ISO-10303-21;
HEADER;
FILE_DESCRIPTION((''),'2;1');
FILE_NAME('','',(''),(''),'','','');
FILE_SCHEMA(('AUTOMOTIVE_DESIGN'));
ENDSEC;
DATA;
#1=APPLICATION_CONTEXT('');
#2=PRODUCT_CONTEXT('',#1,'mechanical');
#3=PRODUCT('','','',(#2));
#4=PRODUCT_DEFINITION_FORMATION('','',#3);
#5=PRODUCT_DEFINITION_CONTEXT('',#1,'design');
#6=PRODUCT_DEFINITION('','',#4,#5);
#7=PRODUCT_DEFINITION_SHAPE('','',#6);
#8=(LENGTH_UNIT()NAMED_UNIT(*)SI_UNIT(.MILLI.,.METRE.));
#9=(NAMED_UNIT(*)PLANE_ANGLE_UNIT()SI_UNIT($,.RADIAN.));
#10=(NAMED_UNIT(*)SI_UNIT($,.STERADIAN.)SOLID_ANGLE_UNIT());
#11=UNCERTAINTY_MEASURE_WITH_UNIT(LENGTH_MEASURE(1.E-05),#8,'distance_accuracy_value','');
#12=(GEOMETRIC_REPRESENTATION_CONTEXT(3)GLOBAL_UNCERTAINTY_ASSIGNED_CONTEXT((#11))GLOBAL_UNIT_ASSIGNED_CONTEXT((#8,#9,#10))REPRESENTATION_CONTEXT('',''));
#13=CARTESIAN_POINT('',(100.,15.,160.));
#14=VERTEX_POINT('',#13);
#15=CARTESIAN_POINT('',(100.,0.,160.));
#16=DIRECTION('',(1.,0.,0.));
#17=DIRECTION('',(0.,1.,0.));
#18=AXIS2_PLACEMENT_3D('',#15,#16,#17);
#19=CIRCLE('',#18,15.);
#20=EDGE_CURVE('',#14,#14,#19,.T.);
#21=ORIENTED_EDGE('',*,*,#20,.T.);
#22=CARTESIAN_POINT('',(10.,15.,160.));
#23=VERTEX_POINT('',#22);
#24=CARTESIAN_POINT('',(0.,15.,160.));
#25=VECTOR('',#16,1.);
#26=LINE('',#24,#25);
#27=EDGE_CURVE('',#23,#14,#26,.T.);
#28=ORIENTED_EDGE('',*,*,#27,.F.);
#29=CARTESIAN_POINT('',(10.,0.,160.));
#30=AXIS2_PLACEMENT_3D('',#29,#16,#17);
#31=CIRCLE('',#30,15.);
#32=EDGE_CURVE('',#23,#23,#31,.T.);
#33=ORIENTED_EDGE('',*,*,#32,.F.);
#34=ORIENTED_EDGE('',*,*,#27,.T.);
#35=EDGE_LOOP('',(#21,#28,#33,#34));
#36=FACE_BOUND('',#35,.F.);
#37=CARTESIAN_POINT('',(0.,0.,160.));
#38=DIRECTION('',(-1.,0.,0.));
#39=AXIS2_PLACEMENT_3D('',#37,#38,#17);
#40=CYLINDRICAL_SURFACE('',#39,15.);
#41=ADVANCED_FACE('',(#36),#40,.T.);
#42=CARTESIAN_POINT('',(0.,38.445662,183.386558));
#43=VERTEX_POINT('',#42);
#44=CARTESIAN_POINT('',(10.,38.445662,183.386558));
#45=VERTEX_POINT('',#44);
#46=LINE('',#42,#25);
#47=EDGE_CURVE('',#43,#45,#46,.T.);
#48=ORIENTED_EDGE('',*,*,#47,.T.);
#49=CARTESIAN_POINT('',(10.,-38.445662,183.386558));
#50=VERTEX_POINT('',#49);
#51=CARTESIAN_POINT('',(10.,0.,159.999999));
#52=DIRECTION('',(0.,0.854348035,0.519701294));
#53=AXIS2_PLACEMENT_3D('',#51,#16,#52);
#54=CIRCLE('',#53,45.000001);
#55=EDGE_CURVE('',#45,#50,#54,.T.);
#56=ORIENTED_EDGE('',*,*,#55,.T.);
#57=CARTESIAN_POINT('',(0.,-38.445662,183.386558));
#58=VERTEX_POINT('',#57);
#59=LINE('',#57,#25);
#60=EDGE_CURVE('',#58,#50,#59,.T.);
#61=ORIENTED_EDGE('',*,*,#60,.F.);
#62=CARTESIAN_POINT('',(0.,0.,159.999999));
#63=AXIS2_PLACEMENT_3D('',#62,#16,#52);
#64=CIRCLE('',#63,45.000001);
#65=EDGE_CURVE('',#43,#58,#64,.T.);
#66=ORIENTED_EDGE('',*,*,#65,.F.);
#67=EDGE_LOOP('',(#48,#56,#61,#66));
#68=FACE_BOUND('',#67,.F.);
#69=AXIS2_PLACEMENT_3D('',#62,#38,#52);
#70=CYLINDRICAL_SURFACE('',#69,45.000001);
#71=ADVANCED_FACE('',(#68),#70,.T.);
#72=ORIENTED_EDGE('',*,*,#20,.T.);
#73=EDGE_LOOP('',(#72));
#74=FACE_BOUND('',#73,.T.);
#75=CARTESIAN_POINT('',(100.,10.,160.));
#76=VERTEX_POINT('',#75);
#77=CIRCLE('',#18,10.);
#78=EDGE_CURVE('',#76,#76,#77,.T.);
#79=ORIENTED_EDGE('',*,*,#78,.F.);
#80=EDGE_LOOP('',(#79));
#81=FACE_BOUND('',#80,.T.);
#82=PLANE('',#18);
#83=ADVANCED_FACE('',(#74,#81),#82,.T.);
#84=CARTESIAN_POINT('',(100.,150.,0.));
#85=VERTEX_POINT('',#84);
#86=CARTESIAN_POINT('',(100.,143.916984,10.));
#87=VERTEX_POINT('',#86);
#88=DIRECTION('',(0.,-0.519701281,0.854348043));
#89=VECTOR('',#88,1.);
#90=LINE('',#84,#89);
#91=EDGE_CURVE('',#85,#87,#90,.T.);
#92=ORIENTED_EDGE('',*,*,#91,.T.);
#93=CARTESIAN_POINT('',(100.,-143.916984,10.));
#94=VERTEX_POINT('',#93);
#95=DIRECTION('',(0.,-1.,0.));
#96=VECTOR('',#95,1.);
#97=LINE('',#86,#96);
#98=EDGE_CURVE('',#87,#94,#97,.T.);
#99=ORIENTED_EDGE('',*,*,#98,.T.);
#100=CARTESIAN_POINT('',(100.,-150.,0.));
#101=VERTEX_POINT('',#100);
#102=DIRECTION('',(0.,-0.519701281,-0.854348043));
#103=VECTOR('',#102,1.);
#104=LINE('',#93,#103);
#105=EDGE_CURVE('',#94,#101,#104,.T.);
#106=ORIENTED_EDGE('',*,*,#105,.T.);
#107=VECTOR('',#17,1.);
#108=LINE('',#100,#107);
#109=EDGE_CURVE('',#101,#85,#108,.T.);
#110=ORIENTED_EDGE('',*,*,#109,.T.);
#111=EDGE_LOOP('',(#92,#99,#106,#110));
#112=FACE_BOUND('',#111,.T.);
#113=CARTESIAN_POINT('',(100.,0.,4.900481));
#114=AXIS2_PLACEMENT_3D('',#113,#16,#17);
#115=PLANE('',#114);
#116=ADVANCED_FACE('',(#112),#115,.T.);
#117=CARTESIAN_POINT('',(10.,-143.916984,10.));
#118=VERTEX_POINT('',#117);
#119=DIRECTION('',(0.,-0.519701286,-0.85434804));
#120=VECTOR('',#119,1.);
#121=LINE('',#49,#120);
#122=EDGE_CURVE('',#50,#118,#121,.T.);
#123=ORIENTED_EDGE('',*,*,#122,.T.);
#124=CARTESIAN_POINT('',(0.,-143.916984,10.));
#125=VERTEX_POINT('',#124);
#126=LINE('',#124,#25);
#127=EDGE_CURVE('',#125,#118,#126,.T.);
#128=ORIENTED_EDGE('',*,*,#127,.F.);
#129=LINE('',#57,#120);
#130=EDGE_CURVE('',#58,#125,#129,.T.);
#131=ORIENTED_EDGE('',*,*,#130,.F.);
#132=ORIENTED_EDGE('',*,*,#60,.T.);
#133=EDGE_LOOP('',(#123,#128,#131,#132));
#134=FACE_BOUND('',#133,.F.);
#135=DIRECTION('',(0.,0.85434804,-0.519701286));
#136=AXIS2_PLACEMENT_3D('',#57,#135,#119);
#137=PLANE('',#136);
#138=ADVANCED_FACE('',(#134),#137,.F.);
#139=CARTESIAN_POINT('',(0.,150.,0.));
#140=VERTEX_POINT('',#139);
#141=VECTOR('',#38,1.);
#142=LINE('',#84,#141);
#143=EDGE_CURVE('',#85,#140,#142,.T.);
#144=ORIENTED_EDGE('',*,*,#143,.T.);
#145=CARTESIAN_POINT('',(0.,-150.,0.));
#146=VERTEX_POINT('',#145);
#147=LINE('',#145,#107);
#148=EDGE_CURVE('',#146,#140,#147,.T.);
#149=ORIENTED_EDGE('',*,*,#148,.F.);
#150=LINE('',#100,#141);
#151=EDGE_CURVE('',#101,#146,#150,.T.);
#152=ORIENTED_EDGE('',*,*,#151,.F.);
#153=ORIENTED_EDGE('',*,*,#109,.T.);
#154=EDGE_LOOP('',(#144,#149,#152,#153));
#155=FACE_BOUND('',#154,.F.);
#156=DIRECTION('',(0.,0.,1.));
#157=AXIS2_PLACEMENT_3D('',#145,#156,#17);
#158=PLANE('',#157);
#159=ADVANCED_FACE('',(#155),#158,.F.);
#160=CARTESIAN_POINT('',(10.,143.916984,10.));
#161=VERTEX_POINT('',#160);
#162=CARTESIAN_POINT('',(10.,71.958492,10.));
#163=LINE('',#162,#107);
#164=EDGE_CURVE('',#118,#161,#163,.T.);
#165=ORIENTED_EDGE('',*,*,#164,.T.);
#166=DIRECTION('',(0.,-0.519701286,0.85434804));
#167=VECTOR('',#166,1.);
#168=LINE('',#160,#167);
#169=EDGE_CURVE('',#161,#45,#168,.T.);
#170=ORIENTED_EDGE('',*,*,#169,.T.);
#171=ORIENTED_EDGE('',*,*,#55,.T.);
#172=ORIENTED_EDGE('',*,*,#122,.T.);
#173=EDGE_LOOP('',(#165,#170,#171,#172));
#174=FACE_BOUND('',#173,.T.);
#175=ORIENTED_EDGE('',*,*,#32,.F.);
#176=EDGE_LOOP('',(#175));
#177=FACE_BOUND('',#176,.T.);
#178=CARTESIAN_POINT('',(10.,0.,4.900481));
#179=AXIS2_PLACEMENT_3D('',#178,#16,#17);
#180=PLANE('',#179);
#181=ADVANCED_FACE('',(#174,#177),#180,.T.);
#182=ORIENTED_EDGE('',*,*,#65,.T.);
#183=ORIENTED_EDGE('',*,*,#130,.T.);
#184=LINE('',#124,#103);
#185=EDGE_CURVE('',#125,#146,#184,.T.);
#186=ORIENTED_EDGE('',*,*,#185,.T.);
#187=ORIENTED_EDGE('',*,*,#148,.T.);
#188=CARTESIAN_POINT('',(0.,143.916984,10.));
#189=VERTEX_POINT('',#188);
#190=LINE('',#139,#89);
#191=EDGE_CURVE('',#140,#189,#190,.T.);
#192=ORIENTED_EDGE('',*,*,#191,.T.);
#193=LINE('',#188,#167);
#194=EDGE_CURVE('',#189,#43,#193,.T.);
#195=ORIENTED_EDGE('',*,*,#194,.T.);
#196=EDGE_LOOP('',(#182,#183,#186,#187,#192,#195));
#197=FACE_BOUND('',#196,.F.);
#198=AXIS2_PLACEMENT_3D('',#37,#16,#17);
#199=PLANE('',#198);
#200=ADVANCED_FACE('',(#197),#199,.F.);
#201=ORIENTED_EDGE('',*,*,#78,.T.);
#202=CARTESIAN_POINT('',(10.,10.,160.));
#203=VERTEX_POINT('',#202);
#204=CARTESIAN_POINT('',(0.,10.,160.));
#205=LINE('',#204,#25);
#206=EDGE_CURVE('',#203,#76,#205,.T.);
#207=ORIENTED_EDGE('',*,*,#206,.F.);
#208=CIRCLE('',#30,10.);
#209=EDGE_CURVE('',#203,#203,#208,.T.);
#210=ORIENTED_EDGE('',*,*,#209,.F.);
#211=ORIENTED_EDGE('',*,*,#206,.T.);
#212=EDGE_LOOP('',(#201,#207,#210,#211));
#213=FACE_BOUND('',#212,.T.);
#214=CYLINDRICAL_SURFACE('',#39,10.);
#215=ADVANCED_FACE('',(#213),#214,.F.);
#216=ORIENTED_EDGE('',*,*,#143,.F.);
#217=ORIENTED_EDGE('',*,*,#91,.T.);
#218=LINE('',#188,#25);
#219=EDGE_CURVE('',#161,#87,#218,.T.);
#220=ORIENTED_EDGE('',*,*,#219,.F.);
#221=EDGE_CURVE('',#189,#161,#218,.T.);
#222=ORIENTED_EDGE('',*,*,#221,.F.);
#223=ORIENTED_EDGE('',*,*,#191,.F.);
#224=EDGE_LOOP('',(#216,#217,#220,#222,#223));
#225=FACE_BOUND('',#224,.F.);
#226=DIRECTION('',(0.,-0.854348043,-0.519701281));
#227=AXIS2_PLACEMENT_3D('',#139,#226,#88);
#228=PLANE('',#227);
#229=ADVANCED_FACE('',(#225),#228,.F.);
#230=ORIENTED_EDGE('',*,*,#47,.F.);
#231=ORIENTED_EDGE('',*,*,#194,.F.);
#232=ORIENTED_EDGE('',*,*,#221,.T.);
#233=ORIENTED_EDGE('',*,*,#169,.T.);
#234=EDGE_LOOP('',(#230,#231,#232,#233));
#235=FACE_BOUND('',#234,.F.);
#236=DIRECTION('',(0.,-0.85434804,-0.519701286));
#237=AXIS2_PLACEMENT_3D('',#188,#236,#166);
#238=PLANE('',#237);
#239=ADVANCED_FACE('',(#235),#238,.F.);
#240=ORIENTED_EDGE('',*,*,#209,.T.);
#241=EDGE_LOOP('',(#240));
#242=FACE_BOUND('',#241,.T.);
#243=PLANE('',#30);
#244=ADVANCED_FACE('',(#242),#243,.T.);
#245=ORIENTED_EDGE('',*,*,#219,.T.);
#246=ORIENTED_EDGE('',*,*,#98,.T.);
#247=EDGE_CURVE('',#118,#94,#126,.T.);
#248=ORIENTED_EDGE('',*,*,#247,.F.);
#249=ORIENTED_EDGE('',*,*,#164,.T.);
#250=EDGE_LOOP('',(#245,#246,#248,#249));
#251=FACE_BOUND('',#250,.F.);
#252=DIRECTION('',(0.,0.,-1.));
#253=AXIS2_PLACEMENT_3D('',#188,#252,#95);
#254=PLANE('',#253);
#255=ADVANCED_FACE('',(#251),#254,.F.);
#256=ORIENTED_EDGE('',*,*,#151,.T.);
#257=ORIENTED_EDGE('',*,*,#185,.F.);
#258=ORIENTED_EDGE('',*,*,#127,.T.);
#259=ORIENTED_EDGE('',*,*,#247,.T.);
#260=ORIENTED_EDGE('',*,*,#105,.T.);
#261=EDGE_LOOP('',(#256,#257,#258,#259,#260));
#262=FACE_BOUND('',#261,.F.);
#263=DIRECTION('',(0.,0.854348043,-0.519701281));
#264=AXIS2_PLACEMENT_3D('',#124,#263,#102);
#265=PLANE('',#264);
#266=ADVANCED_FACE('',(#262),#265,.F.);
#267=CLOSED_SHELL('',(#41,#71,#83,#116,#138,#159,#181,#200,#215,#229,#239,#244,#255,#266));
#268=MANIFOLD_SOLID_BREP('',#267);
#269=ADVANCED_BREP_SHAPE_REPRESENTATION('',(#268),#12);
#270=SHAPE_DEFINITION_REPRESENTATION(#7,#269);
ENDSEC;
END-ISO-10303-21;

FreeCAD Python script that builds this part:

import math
import FreeCAD as App
import Part
import Sketcher

V = App.Vector


def add_polygon(sketch, points):
    """Adds a closed chain of lines whose ends are joined by coincident constraints."""
    first, n = sketch.GeometryCount, len(points)
    for a, b in zip(points, points[1:] + points[:1]):
        sketch.addGeometry(Part.LineSegment(App.Vector(*a, 0), App.Vector(*b, 0)), False)
    for i in range(n):
        sketch.addConstraint(Sketcher.Constraint("Coincident", first + i, 2, first + (i + 1) % n, 1))

doc = App.newDocument("Part")
params = doc.addObject("Spreadsheet::Sheet", "Params")
for row, (alias, value) in enumerate([
    ("sketch1_diameter", "30 mm"),
    ("sketch1_radius", "45.000001 mm"),
    ("sketch1_width", "300 mm"),
    ("pad1_length", "10 mm"),
    ("sketch2_diameter", "30 mm"),
    ("sketch2_diameter2", "20 mm"),
    ("pad2_length", "100 mm"),
    ("sketch3_diameter", "20 mm"),
    ("sketch3_diameter2", "16 mm"),
    ("pad3_length", "10 mm"),
    ("sketch4_diameter", "16 mm"),
    ("pad4_length", "10 mm"),
    ("sketch5_width", "300 mm"),
    ("pad5_length", "100 mm"),
], start=1):
    params.set(f"A{row}", alias)
    params.set(f"B{row}", "=" + value)
    params.setAlias(f"B{row}", alias)

body = doc.addObject("PartDesign::Body", "Body")

sketch1 = body.newObject("Sketcher::SketchObject", "Sketch")
sketch1.AttachmentSupport = (doc.getObject("YZ_Plane"), [""])
sketch1.MapMode = "FlatFace"
sketch1.addGeometry([
    Part.LineSegment(V(-150, 0, 0), V(150, 0, 0)),
    Part.LineSegment(V(150, 0, 0), V(144, 10, 0)),
    Part.LineSegment(V(144, 10, 0), V(38, 183, 0)),
    Part.ArcOfCircle(Part.Circle(V(0, 160, 0), V(0, 0, 1), 45), math.radians(31), math.radians(149)),
    Part.LineSegment(V(-38, 183, 0), V(-144, 10, 0)),
    Part.LineSegment(V(-144, 10, 0), V(-150, 0, 0)),
    Part.Circle(V(0, 160, 0), V(0, 0, 1), 15),
], False)
sketch1.addConstraint([
    Sketcher.Constraint("Coincident", 0, 2, 1, 1),
    Sketcher.Constraint("Coincident", 1, 2, 2, 1),
    Sketcher.Constraint("Tangent", 2, 2, 3, 1),
    Sketcher.Constraint("Tangent", 3, 2, 4, 1),
    Sketcher.Constraint("Coincident", 4, 2, 5, 1),
    Sketcher.Constraint("Coincident", 5, 2, 0, 1),
    Sketcher.Constraint("Horizontal", 0),
    Sketcher.Constraint("Coincident", 6, 3, 3, 3),
    Sketcher.Constraint("Symmetric", 0, 2, 5, 2, -1, 1),
    Sketcher.Constraint("Symmetric", 2, 2, 3, 2, -2),
    Sketcher.Constraint("Parallel", 1, 2),
    Sketcher.Constraint("Horizontal", 1, 2, 4, 2),
    Sketcher.Constraint("Diameter", 6, 30.0),
    Sketcher.Constraint("Radius", 3, 45.000001),
    Sketcher.Constraint("DistanceX", 0, 1, 0, 2, 300.0),
    Sketcher.Constraint("DistanceY", -1, 1, 3, 3, 159.999999),
    Sketcher.Constraint("DistanceY", -1, 1, 1, 2, 10.0),
])
sketch1.setExpression("Constraints[12]", "Params.sketch1_diameter")
sketch1.setExpression("Constraints[13]", "Params.sketch1_radius")
sketch1.setExpression("Constraints[14]", "Params.sketch1_width")
pad1 = body.newObject("PartDesign::Pad", "Pad")
pad1.Profile = sketch1
pad1.setExpression("Length", "Params.pad1_length")

sketch2 = body.newObject("Sketcher::SketchObject", "Sketch001")
sketch2.AttachmentSupport = (doc.getObject("YZ_Plane"), [""])
sketch2.MapMode = "FlatFace"
sketch2.addGeometry([
    Part.Circle(V(0, 160, 0), V(0, 0, 1), 15),
    Part.Circle(V(0, 160, 0), V(0, 0, 1), 10),
], False)
sketch2.addConstraint([
    Sketcher.Constraint("Coincident", 1, 3, 0, 3),
    Sketcher.Constraint("PointOnObject", 0, 3, -2),
    Sketcher.Constraint("Diameter", 0, 30.0),
    Sketcher.Constraint("Diameter", 1, 20.0),
    Sketcher.Constraint("DistanceY", -1, 1, 0, 3, 160.0),
])
sketch2.setExpression("Constraints[2]", "Params.sketch2_diameter")
sketch2.setExpression("Constraints[3]", "Params.sketch2_diameter2")
pad2 = body.newObject("PartDesign::Pad", "Pad001")
pad2.Profile = sketch2
pad2.setExpression("Length", "Params.pad2_length")

sketch3 = body.newObject("Sketcher::SketchObject", "Sketch002")
sketch3.AttachmentSupport = (doc.getObject("YZ_Plane"), [""])
sketch3.MapMode = "FlatFace"
sketch3.addGeometry([
    Part.Circle(V(0, 160, 0), V(0, 0, 1), 10),
    Part.Circle(V(0, 160, 0), V(0, 0, 1), 8),
], False)
sketch3.addConstraint([
    Sketcher.Constraint("Coincident", 1, 3, 0, 3),
    Sketcher.Constraint("PointOnObject", 0, 3, -2),
    Sketcher.Constraint("Diameter", 0, 20.0),
    Sketcher.Constraint("Diameter", 1, 16.0),
    Sketcher.Constraint("DistanceY", -1, 1, 0, 3, 160.0),
])
sketch3.setExpression("Constraints[2]", "Params.sketch3_diameter")
sketch3.setExpression("Constraints[3]", "Params.sketch3_diameter2")
pad3 = body.newObject("PartDesign::Pad", "Pad002")
pad3.Profile = sketch3
pad3.setExpression("Length", "Params.pad3_length")

sketch4 = body.newObject("Sketcher::SketchObject", "Sketch003")
sketch4.AttachmentSupport = (doc.getObject("YZ_Plane"), [""])
sketch4.MapMode = "FlatFace"
sketch4.addGeometry(Part.Circle(V(0, 160, 0), V(0, 0, 1), 8), False)
sketch4.addConstraint([
    Sketcher.Constraint("PointOnObject", 0, 3, -2),
    Sketcher.Constraint("Diameter", 0, 16.0),
    Sketcher.Constraint("DistanceY", -1, 1, 0, 3, 160.0),
])
sketch4.setExpression("Constraints[1]", "Params.sketch4_diameter")
pad4 = body.newObject("PartDesign::Pad", "Pad003")
pad4.Profile = sketch4
pad4.setExpression("Length", "Params.pad4_length")

sketch5 = body.newObject("Sketcher::SketchObject", "Sketch004")
sketch5.AttachmentSupport = (doc.getObject("YZ_Plane"), [""])
sketch5.MapMode = "FlatFace"
add_polygon(sketch5, [(-150, 0), (150, 0), (144, 10), (-144, 10)])
sketch5.addConstraint([
    Sketcher.Constraint("Horizontal", 0),
    Sketcher.Constraint("Horizontal", 2),
    Sketcher.Constraint("Symmetric", 0, 2, 3, 2, -1, 1),
    Sketcher.Constraint("Equal", 1, 3),
    Sketcher.Constraint("DistanceX", 0, 1, 0, 2, 300.0),
    Sketcher.Constraint("DistanceY", -1, 1, 1, 2, 10.0),
    Sketcher.Constraint("DistanceX", 2, 2, 2, 1, 287.833968),
])
sketch5.setExpression("Constraints[8]", "Params.sketch5_width")
pad5 = body.newObject("PartDesign::Pad", "Pad004")
pad5.Profile = sketch5
pad5.setExpression("Length", "Params.pad5_length")

doc.recompute()
